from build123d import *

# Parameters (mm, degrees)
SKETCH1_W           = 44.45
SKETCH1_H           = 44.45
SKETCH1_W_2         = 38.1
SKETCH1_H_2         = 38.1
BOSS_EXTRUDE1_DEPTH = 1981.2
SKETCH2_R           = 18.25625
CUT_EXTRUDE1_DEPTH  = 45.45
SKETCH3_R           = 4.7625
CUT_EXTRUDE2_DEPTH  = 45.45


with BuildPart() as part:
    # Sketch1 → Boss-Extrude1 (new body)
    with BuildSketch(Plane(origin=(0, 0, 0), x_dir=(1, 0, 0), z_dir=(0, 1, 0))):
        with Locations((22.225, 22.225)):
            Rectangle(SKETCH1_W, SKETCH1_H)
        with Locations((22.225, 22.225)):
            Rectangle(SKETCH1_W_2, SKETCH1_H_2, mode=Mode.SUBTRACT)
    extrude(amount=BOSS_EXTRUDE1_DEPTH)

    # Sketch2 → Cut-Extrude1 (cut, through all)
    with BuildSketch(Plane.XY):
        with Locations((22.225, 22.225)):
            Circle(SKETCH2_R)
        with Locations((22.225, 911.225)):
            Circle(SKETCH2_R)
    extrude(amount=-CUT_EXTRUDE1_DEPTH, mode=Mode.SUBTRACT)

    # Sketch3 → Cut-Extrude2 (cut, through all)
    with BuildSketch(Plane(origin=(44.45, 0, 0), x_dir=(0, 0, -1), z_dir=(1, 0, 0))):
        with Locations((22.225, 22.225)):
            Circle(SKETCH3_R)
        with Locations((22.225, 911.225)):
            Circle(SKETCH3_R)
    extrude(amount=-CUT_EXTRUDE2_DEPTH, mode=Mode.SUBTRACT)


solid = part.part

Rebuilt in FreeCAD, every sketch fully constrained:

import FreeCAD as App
import Part
import Sketcher

V = App.Vector
Q = App.Units.Quantity

doc = App.newDocument("Part")
params = doc.addObject("Spreadsheet::Sheet", "Params")
for row, (alias, value) in enumerate([
    ("sketch1_width", "1.5 in"),
    ("sketch1_width2", "1.75 in"),
    ("pad1_length", "78 in"),
    ("sketch2_diameter", "1.4375 in"),
    ("sketch3_diameter", "0.375 in"),
], start=1):
    params.set(f"A{row}", alias)
    params.set(f"B{row}", "=" + value)
    params.setAlias(f"B{row}", alias)

body = doc.addObject("PartDesign::Body", "Body")

sketch1 = body.newObject("Sketcher::SketchObject", "Sketch")
sketch1.AttachmentSupport = (doc.getObject("XZ_Plane"), [""])
sketch1.MapMode = "FlatFace"
sketch1.addGeometry([
    Part.LineSegment(V(0, -44, 0), V(0, 0, 0)),
    Part.LineSegment(V(0, 0, 0), V(44, 0, 0)),
    Part.LineSegment(V(44, 0, 0), V(44, -44, 0)),
    Part.LineSegment(V(44, -44, 0), V(0, -44, 0)),
    Part.LineSegment(V(41, -3, 0), V(3, -3, 0)),
    Part.LineSegment(V(3, -3, 0), V(3, -41, 0)),
    Part.LineSegment(V(3, -41, 0), V(41, -41, 0)),
    Part.LineSegment(V(41, -41, 0), V(41, -3, 0)),
], False)
sketch1.addConstraint([
    Sketcher.Constraint("Coincident", 0, 2, 1, 1),
    Sketcher.Constraint("Coincident", 1, 2, 2, 1),
    Sketcher.Constraint("Coincident", 2, 2, 3, 1),
    Sketcher.Constraint("Coincident", 3, 2, 0, 1),
    Sketcher.Constraint("Coincident", 4, 2, 5, 1),
    Sketcher.Constraint("Coincident", 5, 2, 6, 1),
    Sketcher.Constraint("Coincident", 6, 2, 7, 1),
    Sketcher.Constraint("Coincident", 7, 2, 4, 1),
    Sketcher.Constraint("Vertical", 0),
    Sketcher.Constraint("Horizontal", 1),
    Sketcher.Constraint("Vertical", 2),
    Sketcher.Constraint("Horizontal", 3),
    Sketcher.Constraint("Horizontal", 4),
    Sketcher.Constraint("Vertical", 5),
    Sketcher.Constraint("Horizontal", 6),
    Sketcher.Constraint("Vertical", 7),
    Sketcher.Constraint("Coincident", 0, 2, -1, 1),
    Sketcher.Constraint("Equal", 3, 0),
    Sketcher.Constraint("Equal", 6, 5),
    Sketcher.Constraint("DistanceX", 4, 2, 4, 1, Q("1.5 in")),
    Sketcher.Constraint("DistanceX", 1, 1, 1, 2, Q("1.75 in")),
    Sketcher.Constraint("DistanceX", -1, 1, 4, 2, Q("0.125 in")),
    Sketcher.Constraint("DistanceY", 4, 2, -1, 1, Q("0.125 in")),
])
sketch1.setExpression("Constraints[19]", "Params.sketch1_width")
sketch1.setExpression("Constraints[20]", "Params.sketch1_width2")
pad1 = body.newObject("PartDesign::Pad", "Pad")
pad1.Profile = sketch1
pad1.setExpression("Length", "Params.pad1_length")
pad1.Reversed = True

sketch2 = body.newObject("Sketcher::SketchObject", "Sketch001")
sketch2.AttachmentSupport = (doc.getObject("XY_Plane"), [""])
sketch2.MapMode = "FlatFace"
sketch2.addGeometry([
    Part.Circle(V(22, 22, 0), V(0, 0, 1), 18),
    Part.Circle(V(22, 911, 0), V(0, 0, 1), 18),
], False)
sketch2.addConstraint([
    Sketcher.Constraint("Equal", 0, 1),
    Sketcher.Constraint("Vertical", 0, 3, 1, 3),
    Sketcher.Constraint("Diameter", 0, Q("1.4375 in")),
    Sketcher.Constraint("DistanceY", 0, 3, 1, 3, Q("35 in")),
    Sketcher.Constraint("DistanceX", -1, 1, 0, 3, Q("0.875 in")),
    Sketcher.Constraint("DistanceY", -1, 1, 0, 3, Q("0.875 in")),
])
sketch2.setExpression("Constraints[2]", "Params.sketch2_diameter")
pocket1 = body.newObject("PartDesign::Pocket", "Pocket")
pocket1.Profile = sketch2
pocket1.Type = "ThroughAll"

sketch3 = body.newObject("Sketcher::SketchObject", "Sketch002")
sketch3.AttachmentSupport = (doc.getObject("YZ_Plane"), [""])
sketch3.MapMode = "FlatFace"
sketch3.AttachmentOffset = App.Placement(V(0, 0, 1.75 * 25.4), App.Rotation())
sketch3.addGeometry([
    Part.Circle(V(22.2, -22.2, 0), V(0, 0, 1), 4.8),
    Part.Circle(V(911.2, -22.2, 0), V(0, 0, 1), 4.8),
], False)
sketch3.addConstraint([
    Sketcher.Constraint("Equal", 0, 1),
    Sketcher.Constraint("Horizontal", 0, 3, 1, 3),
    Sketcher.Constraint("Diameter", 0, Q("0.375 in")),
    Sketcher.Constraint("DistanceX", 0, 3, 1, 3, Q("35 in")),
    Sketcher.Constraint("DistanceX", -1, 1, 0, 3, Q("0.875 in")),
    Sketcher.Constraint("DistanceY", 0, 3, -1, 1, Q("0.875 in")),
])
sketch3.setExpression("Constraints[2]", "Params.sketch3_diameter")
pocket2 = body.newObject("PartDesign::Pocket", "Pocket001")
pocket2.Profile = sketch3
pocket2.Type = "ThroughAll"

doc.recompute()
